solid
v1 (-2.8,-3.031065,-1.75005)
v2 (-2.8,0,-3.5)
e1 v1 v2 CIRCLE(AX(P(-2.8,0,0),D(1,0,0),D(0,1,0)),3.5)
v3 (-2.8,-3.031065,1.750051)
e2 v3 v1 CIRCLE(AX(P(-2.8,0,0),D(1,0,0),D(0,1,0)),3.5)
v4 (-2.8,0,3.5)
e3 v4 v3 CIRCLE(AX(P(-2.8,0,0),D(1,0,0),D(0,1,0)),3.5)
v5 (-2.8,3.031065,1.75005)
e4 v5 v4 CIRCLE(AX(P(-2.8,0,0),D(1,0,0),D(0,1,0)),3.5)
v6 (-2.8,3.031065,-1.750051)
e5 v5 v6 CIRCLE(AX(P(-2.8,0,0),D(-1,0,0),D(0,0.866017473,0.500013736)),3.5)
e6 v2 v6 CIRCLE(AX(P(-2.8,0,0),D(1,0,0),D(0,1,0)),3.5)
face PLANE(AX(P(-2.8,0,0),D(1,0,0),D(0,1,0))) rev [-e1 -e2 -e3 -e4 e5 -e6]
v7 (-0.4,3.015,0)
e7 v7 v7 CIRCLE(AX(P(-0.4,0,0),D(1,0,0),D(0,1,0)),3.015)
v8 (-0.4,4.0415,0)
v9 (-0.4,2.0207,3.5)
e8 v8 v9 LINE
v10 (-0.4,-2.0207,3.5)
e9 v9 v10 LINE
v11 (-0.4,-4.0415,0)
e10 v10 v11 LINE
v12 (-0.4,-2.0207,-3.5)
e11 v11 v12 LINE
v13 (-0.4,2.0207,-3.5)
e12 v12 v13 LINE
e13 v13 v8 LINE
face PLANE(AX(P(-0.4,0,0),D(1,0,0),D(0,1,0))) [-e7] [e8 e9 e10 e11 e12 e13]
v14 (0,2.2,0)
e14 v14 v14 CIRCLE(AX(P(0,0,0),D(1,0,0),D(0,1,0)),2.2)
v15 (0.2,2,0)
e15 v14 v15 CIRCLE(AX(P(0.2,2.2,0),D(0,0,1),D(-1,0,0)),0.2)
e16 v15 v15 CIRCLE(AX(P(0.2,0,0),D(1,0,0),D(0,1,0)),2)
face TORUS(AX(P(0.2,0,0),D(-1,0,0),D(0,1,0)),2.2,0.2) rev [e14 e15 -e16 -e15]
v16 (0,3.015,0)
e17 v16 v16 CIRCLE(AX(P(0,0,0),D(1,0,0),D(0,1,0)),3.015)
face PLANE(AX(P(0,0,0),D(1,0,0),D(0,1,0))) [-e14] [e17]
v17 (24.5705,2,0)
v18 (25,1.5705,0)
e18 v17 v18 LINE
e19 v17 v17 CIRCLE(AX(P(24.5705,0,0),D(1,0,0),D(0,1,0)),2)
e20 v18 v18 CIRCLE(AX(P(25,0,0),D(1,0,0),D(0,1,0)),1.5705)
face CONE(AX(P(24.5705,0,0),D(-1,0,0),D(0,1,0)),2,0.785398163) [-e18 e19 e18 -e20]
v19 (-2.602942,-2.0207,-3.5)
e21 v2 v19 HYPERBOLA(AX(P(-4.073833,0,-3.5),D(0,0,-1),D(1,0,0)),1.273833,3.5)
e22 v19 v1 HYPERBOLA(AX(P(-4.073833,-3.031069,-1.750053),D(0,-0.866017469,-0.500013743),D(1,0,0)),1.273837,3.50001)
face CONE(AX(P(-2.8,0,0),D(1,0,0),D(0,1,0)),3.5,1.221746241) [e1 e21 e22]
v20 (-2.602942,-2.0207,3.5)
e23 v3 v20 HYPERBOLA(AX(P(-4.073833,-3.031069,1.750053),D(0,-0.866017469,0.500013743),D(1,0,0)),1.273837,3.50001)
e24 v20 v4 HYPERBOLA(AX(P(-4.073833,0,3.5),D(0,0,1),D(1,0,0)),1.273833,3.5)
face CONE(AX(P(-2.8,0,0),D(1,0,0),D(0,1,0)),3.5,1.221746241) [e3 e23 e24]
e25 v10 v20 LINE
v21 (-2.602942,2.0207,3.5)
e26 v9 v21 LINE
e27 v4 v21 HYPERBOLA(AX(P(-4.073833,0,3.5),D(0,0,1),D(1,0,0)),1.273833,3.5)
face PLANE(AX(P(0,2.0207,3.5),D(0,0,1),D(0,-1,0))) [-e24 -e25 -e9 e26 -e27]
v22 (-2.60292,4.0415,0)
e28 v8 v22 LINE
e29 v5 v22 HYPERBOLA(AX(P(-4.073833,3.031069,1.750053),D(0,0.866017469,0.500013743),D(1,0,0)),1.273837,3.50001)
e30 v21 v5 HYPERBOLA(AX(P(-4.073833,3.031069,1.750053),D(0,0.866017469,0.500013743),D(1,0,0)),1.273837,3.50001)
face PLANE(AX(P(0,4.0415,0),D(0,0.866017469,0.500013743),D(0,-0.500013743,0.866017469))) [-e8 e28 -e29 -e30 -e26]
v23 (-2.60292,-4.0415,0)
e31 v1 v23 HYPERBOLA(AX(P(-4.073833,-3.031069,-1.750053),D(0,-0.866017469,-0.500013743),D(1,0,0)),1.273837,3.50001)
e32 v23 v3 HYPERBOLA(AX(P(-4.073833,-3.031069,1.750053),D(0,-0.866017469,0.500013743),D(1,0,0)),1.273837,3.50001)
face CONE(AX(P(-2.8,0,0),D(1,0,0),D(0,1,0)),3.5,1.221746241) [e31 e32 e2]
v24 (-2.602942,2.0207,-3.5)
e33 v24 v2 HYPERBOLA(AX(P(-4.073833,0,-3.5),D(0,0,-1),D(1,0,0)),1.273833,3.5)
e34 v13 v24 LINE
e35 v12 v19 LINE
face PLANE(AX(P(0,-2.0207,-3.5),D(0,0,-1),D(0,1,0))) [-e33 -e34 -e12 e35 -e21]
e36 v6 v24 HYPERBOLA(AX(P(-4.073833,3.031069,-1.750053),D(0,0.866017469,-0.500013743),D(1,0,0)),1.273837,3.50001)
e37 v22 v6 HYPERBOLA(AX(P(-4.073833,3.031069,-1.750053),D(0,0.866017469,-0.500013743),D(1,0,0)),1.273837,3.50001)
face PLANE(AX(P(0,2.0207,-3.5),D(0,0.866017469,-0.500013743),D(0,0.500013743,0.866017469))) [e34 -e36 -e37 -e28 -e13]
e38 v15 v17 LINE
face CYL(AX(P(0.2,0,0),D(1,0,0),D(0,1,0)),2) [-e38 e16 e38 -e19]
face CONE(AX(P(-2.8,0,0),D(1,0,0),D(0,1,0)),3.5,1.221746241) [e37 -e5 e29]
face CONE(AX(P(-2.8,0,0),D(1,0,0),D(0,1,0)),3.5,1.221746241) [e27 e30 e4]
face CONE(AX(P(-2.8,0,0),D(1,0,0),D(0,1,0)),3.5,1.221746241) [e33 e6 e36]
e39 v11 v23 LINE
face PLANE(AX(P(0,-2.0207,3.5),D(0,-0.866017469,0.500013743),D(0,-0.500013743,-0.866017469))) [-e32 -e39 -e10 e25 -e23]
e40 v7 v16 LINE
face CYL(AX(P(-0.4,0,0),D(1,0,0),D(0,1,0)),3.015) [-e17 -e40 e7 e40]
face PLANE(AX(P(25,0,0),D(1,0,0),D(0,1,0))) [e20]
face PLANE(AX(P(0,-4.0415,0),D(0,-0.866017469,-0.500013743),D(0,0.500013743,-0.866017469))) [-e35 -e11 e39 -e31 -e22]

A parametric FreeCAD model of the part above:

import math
import FreeCAD as App
import Part
import Sketcher

V = App.Vector
Q = App.Units.Quantity


def add_polygon(sketch, points):
    """Adds a closed chain of lines whose ends are joined by coincident constraints."""
    first, n = sketch.GeometryCount, len(points)
    for a, b in zip(points, points[1:] + points[:1]):
        sketch.addGeometry(Part.LineSegment(App.Vector(*a, 0), App.Vector(*b, 0)), False)
    for i in range(n):
        sketch.addConstraint(Sketcher.Constraint("Coincident", first + i, 2, first + (i + 1) % n, 1))

doc = App.newDocument("Part")
body = doc.addObject("PartDesign::Body", "Body")

# Sketch on XY plane
sketch1 = body.newObject("Sketcher::SketchObject", "Sketch")
sketch1.AttachmentSupport = (doc.getObject("XY_Plane"), [""])
sketch1.MapMode = "FlatFace"
sketch1.addGeometry(Part.LineSegment(V(-2.8, 0, 0), V(25, 0, 0)), False)
sketch1.addGeometry(Part.LineSegment(V(25, 0, 0), V(25, 1.57, 0)), False)
sketch1.addGeometry(Part.LineSegment(V(25, 1.57, 0), V(24.57, 2, 0)), False)
sketch1.addGeometry(Part.LineSegment(V(24.57, 2, 0), V(0.2, 2, 0)), False)
sketch1.addGeometry(Part.ArcOfCircle(Part.Circle(V(0.2, 2.2, 0), V(0, 0, 1), 0.2), math.radians(180), math.radians(270)), False)
sketch1.addGeometry(Part.LineSegment(V(0, 2.2, 0), V(0, 3.02, 0)), False)
sketch1.addGeometry(Part.LineSegment(V(0, 3.02, 0), V(-0.4, 3.02, 0)), False)
sketch1.addGeometry(Part.LineSegment(V(-0.4, 3.02, 0), V(-0.4, 5.6, 0)), False)
sketch1.addGeometry(Part.LineSegment(V(-0.4, 5.6, 0), V(-2.04, 5.6, 0)), False)
sketch1.addGeometry(Part.LineSegment(V(-2.04, 5.6, 0), V(-2.8, 3.5, 0)), False)
sketch1.addGeometry(Part.LineSegment(V(-2.8, 3.5, 0), V(-2.8, 0, 0)), False)
sketch1.addConstraint(Sketcher.Constraint("Coincident", 0, 2, 1, 1))
sketch1.addConstraint(Sketcher.Constraint("Coincident", 1, 2, 2, 1))
sketch1.addConstraint(Sketcher.Constraint("Coincident", 2, 2, 3, 1))
sketch1.addConstraint(Sketcher.Constraint("Tangent", 3, 2, 4, 2))
sketch1.addConstraint(Sketcher.Constraint("Tangent", 4, 1, 5, 1))
sketch1.addConstraint(Sketcher.Constraint("Coincident", 5, 2, 6, 1))
sketch1.addConstraint(Sketcher.Constraint("Coincident", 6, 2, 7, 1))
sketch1.addConstraint(Sketcher.Constraint("Coincident", 7, 2, 8, 1))
sketch1.addConstraint(Sketcher.Constraint("Coincident", 8, 2, 9, 1))
sketch1.addConstraint(Sketcher.Constraint("Coincident", 9, 2, 10, 1))
sketch1.addConstraint(Sketcher.Constraint("Coincident", 10, 2, 0, 1))
sketch1.addConstraint(Sketcher.Constraint("Horizontal", 0))
sketch1.addConstraint(Sketcher.Constraint("Vertical", 1))
sketch1.addConstraint(Sketcher.Constraint("Horizontal", 3))
sketch1.addConstraint(Sketcher.Constraint("Vertical", 5))
sketch1.addConstraint(Sketcher.Constraint("Horizontal", 6))
sketch1.addConstraint(Sketcher.Constraint("Vertical", 7))
sketch1.addConstraint(Sketcher.Constraint("Horizontal", 8))
sketch1.addConstraint(Sketcher.Constraint("Vertical", 10))
sketch1.addConstraint(Sketcher.Constraint("PointOnObject", 0, 2, -1))
sketch1.addConstraint(Sketcher.Constraint("PointOnObject", 4, 1, -2))
sketch1.addConstraint(Sketcher.Constraint("Radius", 4, Q("0.2 mm")))
sketch1.addConstraint(Sketcher.Constraint("Angle", 2, Q("135 deg")))
sketch1.addConstraint(Sketcher.Constraint("Angle", 9, Q("-109.999 deg")))
sketch1.addConstraint(Sketcher.Constraint("DistanceX", 0, 1, 0, 2, Q("27.8 mm")))
sketch1.addConstraint(Sketcher.Constraint("DistanceX", 6, 2, 6, 1, Q("0.4 mm")))
sketch1.addConstraint(Sketcher.Constraint("DistanceY", 10, 2, 10, 1, Q("3.5 mm")))
sketch1.addConstraint(Sketcher.Constraint("DistanceX", -1, 1, 0, 2, Q("25 mm")))
sketch1.addConstraint(Sketcher.Constraint("DistanceY", -1, 1, 2, 2, Q("2 mm")))
sketch1.addConstraint(Sketcher.Constraint("DistanceY", -1, 1, 7, 2, Q("5.6 mm")))
sketch1.addConstraint(Sketcher.Constraint("DistanceY", 5, 1, 5, 2, Q("0.815 mm")))
sketch1.addConstraint(Sketcher.Constraint("DistanceX", 3, 2, 3, 1, Q("24.3705 mm")))
revolution = body.newObject("PartDesign::Revolution", "Revolution")
revolution.Profile = sketch1
revolution.ReferenceAxis = (sketch1, ["H_Axis"])
revolution.Angle = 360

# Sketch on YZ plane
sketch2 = body.newObject("Sketcher::SketchObject", "Sketch001")
sketch2.AttachmentSupport = (doc.getObject("YZ_Plane"), [""])
sketch2.MapMode = "FlatFace"
add_polygon(sketch2, [(7, 7), (-7, 7), (-7, -7), (7, -7)])  # lines 0-3
add_polygon(sketch2, [(-4, 0), (-2, 3.5), (2, 3.5), (4, 0), (2, -3.5), (-2, -3.5)])  # lines 4-9
sketch2.addConstraint(Sketcher.Constraint("Horizontal", 0))
sketch2.addConstraint(Sketcher.Constraint("Vertical", 1))
sketch2.addConstraint(Sketcher.Constraint("Horizontal", 2))
sketch2.addConstraint(Sketcher.Constraint("Vertical", 3))
sketch2.addConstraint(Sketcher.Constraint("Horizontal", 5))
sketch2.addConstraint(Sketcher.Constraint("Horizontal", 8))
sketch2.addConstraint(Sketcher.Constraint("Symmetric", 0, 2, 2, 2, -1, 1))
sketch2.addConstraint(Sketcher.Constraint("Symmetric", 4, 2, 7, 2, -1, 1))
sketch2.addConstraint(Sketcher.Constraint("Symmetric", 6, 2, 9, 2, -1, 1))
sketch2.addConstraint(Sketcher.Constraint("PointOnObject", 6, 2, -1))
sketch2.addConstraint(Sketcher.Constraint("Parallel", 6, 9))
sketch2.addConstraint(Sketcher.Constraint("Vertical", 5, 2, 7, 2))
sketch2.addConstraint(Sketcher.Constraint("Equal", 2, 1))
sketch2.addConstraint(Sketcher.Constraint("DistanceX", 0, 2, 0, 1, Q("14 mm")))
sketch2.addConstraint(Sketcher.Constraint("Angle", 4, Q("59.999 deg")))
sketch2.addConstraint(Sketcher.Constraint("DistanceY", 7, 2, 5, 2, Q("7 mm")))
sketch2.addConstraint(Sketcher.Constraint("DistanceX", 5, 1, 5, 2, Q("4.0414 mm")))
pocket1 = body.newObject("PartDesign::Pocket", "Pocket")
pocket1.Profile = sketch2
pocket1.Length = 2.8

doc.recompute()
